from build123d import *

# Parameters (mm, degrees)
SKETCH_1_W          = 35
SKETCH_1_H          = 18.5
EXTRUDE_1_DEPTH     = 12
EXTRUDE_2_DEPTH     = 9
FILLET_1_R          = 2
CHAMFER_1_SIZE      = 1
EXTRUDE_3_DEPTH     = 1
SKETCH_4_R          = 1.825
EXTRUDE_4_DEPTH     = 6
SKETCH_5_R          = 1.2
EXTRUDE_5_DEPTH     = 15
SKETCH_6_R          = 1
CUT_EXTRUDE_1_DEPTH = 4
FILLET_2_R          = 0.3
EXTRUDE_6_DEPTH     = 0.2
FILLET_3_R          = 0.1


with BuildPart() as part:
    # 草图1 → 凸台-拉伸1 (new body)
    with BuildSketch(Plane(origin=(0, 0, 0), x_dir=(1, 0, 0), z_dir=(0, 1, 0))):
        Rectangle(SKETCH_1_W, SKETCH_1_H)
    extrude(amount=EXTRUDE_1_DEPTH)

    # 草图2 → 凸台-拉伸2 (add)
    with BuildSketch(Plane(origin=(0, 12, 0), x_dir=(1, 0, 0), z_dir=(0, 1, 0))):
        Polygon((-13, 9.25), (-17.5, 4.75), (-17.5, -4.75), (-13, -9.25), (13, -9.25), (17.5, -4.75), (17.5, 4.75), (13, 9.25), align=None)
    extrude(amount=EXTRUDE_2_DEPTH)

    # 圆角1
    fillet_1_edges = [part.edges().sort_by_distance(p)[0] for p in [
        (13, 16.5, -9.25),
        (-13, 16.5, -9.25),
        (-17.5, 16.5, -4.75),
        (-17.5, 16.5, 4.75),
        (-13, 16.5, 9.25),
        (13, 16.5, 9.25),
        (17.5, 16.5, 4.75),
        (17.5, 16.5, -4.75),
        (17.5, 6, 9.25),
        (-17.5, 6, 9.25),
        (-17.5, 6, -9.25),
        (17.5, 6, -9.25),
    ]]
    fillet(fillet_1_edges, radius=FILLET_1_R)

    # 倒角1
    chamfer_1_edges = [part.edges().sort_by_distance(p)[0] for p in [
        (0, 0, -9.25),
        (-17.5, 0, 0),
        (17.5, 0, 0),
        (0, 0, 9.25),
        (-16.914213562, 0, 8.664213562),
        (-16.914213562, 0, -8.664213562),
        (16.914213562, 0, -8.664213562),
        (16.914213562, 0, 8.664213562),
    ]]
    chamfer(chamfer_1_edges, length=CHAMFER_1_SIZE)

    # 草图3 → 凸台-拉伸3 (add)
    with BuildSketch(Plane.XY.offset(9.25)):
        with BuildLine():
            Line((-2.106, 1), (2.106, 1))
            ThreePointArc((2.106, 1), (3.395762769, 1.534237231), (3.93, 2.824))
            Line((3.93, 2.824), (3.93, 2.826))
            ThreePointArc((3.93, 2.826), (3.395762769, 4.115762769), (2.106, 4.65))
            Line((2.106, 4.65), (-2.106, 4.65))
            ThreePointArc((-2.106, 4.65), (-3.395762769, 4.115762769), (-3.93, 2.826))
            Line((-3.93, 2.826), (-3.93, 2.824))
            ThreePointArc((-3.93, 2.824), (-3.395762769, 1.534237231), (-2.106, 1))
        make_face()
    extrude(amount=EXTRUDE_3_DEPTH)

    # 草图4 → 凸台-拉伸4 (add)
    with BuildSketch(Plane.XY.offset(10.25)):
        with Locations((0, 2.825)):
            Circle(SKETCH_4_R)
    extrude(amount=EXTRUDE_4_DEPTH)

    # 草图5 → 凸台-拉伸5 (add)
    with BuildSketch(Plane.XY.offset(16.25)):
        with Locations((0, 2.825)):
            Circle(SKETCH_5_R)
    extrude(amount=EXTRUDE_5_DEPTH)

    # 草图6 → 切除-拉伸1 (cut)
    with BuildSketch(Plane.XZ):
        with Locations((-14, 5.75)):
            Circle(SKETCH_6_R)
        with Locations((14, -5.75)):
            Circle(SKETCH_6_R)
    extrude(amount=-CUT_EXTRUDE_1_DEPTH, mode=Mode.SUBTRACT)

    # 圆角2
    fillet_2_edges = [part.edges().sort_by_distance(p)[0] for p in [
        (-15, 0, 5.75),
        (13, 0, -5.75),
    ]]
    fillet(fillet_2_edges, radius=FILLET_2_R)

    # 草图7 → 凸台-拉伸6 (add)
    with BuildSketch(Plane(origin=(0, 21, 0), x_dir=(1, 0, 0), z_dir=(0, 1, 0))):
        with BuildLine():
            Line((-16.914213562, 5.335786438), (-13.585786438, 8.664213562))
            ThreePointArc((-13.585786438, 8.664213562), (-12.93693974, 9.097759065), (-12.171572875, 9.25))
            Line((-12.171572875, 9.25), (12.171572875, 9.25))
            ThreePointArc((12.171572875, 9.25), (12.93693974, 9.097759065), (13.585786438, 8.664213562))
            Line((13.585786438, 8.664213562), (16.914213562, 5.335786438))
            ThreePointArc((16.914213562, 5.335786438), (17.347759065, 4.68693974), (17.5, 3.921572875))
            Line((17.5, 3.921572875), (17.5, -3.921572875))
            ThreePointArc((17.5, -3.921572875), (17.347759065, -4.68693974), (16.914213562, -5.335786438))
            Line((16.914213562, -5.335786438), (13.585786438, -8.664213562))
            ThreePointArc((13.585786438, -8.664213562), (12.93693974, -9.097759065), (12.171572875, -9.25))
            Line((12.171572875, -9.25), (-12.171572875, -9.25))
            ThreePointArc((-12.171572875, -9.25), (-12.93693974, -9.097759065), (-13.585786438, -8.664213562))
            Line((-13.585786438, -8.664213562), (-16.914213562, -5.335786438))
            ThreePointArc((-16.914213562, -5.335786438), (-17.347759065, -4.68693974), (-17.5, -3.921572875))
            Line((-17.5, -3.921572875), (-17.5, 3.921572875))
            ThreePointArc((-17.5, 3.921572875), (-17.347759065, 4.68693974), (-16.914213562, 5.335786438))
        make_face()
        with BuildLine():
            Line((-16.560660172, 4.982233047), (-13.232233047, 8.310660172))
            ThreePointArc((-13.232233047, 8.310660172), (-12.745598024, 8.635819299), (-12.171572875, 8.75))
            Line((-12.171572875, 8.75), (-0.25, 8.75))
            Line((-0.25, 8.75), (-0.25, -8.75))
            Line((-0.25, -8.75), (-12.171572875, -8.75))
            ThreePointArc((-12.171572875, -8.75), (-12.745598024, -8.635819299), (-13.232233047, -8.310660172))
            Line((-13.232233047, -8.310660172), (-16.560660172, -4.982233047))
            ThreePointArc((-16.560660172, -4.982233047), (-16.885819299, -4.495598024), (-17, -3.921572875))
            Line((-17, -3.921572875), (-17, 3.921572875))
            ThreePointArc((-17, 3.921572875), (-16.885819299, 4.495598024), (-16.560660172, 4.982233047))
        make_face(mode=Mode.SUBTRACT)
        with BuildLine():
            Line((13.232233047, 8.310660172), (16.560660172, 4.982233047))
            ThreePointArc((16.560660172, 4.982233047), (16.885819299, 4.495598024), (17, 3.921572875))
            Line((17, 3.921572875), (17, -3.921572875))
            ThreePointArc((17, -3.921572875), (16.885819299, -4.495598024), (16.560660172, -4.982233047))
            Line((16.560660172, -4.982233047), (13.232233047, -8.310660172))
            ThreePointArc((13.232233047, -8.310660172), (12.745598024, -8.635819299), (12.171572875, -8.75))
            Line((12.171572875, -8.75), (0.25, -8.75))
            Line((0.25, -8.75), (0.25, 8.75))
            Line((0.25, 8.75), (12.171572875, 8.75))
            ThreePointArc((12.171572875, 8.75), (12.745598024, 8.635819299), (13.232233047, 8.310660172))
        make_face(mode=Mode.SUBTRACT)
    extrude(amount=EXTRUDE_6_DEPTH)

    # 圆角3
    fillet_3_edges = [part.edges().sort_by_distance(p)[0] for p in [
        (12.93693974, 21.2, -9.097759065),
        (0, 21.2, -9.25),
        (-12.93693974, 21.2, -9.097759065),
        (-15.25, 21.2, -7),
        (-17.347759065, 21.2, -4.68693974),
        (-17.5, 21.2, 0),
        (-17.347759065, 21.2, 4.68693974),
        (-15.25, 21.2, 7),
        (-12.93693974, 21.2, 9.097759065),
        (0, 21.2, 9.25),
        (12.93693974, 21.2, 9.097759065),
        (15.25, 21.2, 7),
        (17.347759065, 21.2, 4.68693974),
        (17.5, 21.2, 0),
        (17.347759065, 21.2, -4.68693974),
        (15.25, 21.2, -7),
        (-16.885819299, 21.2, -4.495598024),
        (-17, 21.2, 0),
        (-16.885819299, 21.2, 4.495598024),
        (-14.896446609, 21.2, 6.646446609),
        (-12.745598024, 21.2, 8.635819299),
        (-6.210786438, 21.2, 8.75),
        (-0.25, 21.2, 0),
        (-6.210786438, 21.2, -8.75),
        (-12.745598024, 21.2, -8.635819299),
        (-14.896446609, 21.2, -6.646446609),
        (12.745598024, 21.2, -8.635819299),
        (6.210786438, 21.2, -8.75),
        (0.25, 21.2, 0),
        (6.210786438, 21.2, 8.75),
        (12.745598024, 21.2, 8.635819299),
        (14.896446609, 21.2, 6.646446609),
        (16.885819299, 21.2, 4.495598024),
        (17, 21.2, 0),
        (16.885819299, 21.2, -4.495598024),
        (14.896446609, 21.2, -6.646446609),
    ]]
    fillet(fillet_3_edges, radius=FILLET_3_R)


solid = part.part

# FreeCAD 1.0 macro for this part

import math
import FreeCAD as App
import Part
import Sketcher
from FreeCAD import Vector


def edges_at(feature, points):
    """Names of the edges that pass closest to the given points."""
    edges = feature.Shape.Edges
    near = lambda p: min(range(len(edges)), key=lambda i: edges[i].distToShape(Part.Vertex(*p))[0])
    return sorted({f"Edge{near(p) + 1}" for p in points})


def add_polygon(sketch, points):
    """Adds a closed chain of lines whose ends are joined by coincident constraints."""
    first, n = sketch.GeometryCount, len(points)
    for a, b in zip(points, points[1:] + points[:1]):
        sketch.addGeometry(Part.LineSegment(App.Vector(*a, 0), App.Vector(*b, 0)), False)
    for i in range(n):
        sketch.addConstraint(Sketcher.Constraint("Coincident", first + i, 2, first + (i + 1) % n, 1))

doc = App.newDocument("Part")
body = doc.addObject("PartDesign::Body", "Body")

# Sketch on XZ plane
sketch1 = body.newObject("Sketcher::SketchObject", "Sketch")
sketch1.AttachmentSupport = (doc.getObject("XZ_Plane"), [""])
sketch1.MapMode = "FlatFace"
add_polygon(sketch1, [(-18, -9), (-18, 9), (18, 9), (18, -9)])  # lines 0-3
sketch1.addConstraint([
    Sketcher.Constraint("Vertical", 0),
    Sketcher.Constraint("Horizontal", 1),
    Sketcher.Constraint("Vertical", 2),
    Sketcher.Constraint("Horizontal", 3),
    Sketcher.Constraint("Symmetric", 0, 2, 2, 2, -1, 1),
    Sketcher.Constraint("DistanceX", 1, 1, 1, 2, 35.0),
    Sketcher.Constraint("DistanceY", 0, 1, 0, 2, 18.5),
])
pad1 = body.newObject("PartDesign::Pad", "Pad")
pad1.Profile = sketch1
pad1.Length = 12
pad1.Reversed = True

# Sketch on XZ plane
sketch2 = body.newObject("Sketcher::SketchObject", "Sketch001")
sketch2.AttachmentSupport = (doc.getObject("XZ_Plane"), [""])
sketch2.MapMode = "FlatFace"
sketch2.AttachmentOffset = App.Placement(Vector(0, 0, -12), App.Rotation())
add_polygon(sketch2, [(-13, -9), (-18, -5), (-18, 5), (-13, 9), (13, 9), (18, 5), (18, -5), (13, -9)])  # lines 0-7
sketch2.addConstraint([
    Sketcher.Constraint("Vertical", 1),
    Sketcher.Constraint("Horizontal", 3),
    Sketcher.Constraint("Vertical", 5),
    Sketcher.Constraint("Horizontal", 7),
    Sketcher.Constraint("Symmetric", 0, 2, 4, 2, -1, 1),
    Sketcher.Constraint("Symmetric", 2, 2, 6, 2, -1, 1),
    Sketcher.Constraint("Perpendicular", 0, 2),
    Sketcher.Constraint("Perpendicular", 2, 4),
    Sketcher.Constraint("Perpendicular", 4, 6),
    Sketcher.Constraint("Horizontal", 1, 2, 4, 2),
    Sketcher.Constraint("Vertical", 3, 2, 6, 2),
    Sketcher.Constraint("DistanceX", 3, 1, 3, 2, 26.0),
    Sketcher.Constraint("DistanceY", 1, 1, 1, 2, 9.5),
    Sketcher.Constraint("DistanceY", 0, 2, 2, 2, 14.0),
])
pad2 = body.newObject("PartDesign::Pad", "Pad001")
pad2.Profile = sketch2
pad2.Length = 9
pad2.Reversed = True
doc.recompute()

fillet = body.newObject("PartDesign::Fillet", "Fillet")
fillet.Base = (pad2, edges_at(pad2, [
    (13, 16.5, -9.25),
    (-13, 16.5, -9.25),
    (-17.5, 16.5, -4.75),
    (-17.5, 16.5, 4.75),
    (-13, 16.5, 9.25),
    (13, 16.5, 9.25),
    (17.5, 16.5, 4.75),
    (17.5, 16.5, -4.75),
    (17.5, 6, 9.25),
    (-17.5, 6, 9.25),
    (-17.5, 6, -9.25),
    (17.5, 6, -9.25),
]))
fillet.Radius = 2
doc.recompute()

chamfer = body.newObject("PartDesign::Chamfer", "Chamfer")
chamfer.Base = (fillet, edges_at(fillet, [
    (0, 0, -9.25),
    (-17.5, 0, 0),
    (17.5, 0, 0),
    (0, 0, 9.25),
    (-16.914, 0, 8.664),
    (-16.914, 0, -8.664),
    (16.914, 0, -8.664),
    (16.914, 0, 8.664),
]))
chamfer.Size = 1

# Sketch on XY plane
sketch3 = body.newObject("Sketcher::SketchObject", "Sketch002")
sketch3.AttachmentSupport = (doc.getObject("XY_Plane"), [""])
sketch3.MapMode = "FlatFace"
sketch3.AttachmentOffset = App.Placement(Vector(0, 0, 9.25), App.Rotation())
sketch3.addGeometry([
    Part.LineSegment(Vector(-2.106, 1, 0), Vector(2.106, 1, 0)),  # 0
    Part.ArcOfCircle(Part.Circle(Vector(2.106, 2.824, 0), Vector(0, 0, 1), 1.824), math.radians(-90), math.radians(0)),  # 1
    Part.LineSegment(Vector(3.93, 2.824, 0), Vector(3.93, 2.826, 0)),  # 2
    Part.ArcOfCircle(Part.Circle(Vector(2.106, 2.826, 0), Vector(0, 0, 1), 1.824), math.radians(0), math.radians(90)),  # 3
    Part.LineSegment(Vector(2.106, 4.65, 0), Vector(-2.106, 4.65, 0)),  # 4
    Part.ArcOfCircle(Part.Circle(Vector(-2.106, 2.826, 0), Vector(0, 0, 1), 1.824), math.radians(90), math.radians(180)),  # 5
    Part.LineSegment(Vector(-3.93, 2.826, 0), Vector(-3.93, 2.824, 0)),  # 6
    Part.ArcOfCircle(Part.Circle(Vector(-2.106, 2.824, 0), Vector(0, 0, 1), 1.824), math.radians(180), math.radians(270)),  # 7
], False)
sketch3.addConstraint([
    Sketcher.Constraint("Tangent", 0, 2, 1, 1),
    Sketcher.Constraint("Tangent", 1, 2, 2, 1),
    Sketcher.Constraint("Coincident", 2, 2, 3, 1),
    Sketcher.Constraint("Tangent", 3, 2, 4, 1),
    Sketcher.Constraint("Tangent", 4, 2, 5, 1),
    Sketcher.Constraint("Tangent", 5, 2, 6, 1),
    Sketcher.Constraint("Coincident", 6, 2, 7, 1),
    Sketcher.Constraint("Tangent", 7, 2, 0, 1),
    Sketcher.Constraint("Horizontal", 0),
    Sketcher.Constraint("Horizontal", 4),
    Sketcher.Constraint("Equal", 1, 3),
    Sketcher.Constraint("Equal", 3, 5),
    Sketcher.Constraint("Equal", 5, 7),
    Sketcher.Constraint("Symmetric", 2, 2, 5, 2, -2),
    Sketcher.Constraint("Horizontal", 7, 3, 1, 2),
    Sketcher.Constraint("Horizontal", 5, 3, 2, 2),
    Sketcher.Constraint("Horizontal", 1, 2, 6, 2),
    Sketcher.Constraint("DistanceY", -1, 1, 0, 2, 1.0),
    Sketcher.Constraint("Radius", 1, 1.824),
    Sketcher.Constraint("DistanceX", 0, 1, 0, 2, 4.212),
    Sketcher.Constraint("DistanceY", 2, 1, 2, 2, 0.002),
])
pad3 = body.newObject("PartDesign::Pad", "Pad002")
pad3.Profile = sketch3
pad3.Length = 1

# Sketch on XY plane
sketch4 = body.newObject("Sketcher::SketchObject", "Sketch003")
sketch4.AttachmentSupport = (doc.getObject("XY_Plane"), [""])
sketch4.MapMode = "FlatFace"
sketch4.AttachmentOffset = App.Placement(Vector(0, 0, 10.25), App.Rotation())
sketch4.addGeometry(Part.Circle(Vector(0, 2.8, 0), Vector(0, 0, 1), 1.8), False)
sketch4.addConstraint([
    Sketcher.Constraint("PointOnObject", 0, 3, -2),
    Sketcher.Constraint("Diameter", 0, 3.65),
    Sketcher.Constraint("DistanceY", -1, 1, 0, 3, 2.825),
])
pad4 = body.newObject("PartDesign::Pad", "Pad003")
pad4.Profile = sketch4
pad4.Length = 6

# Sketch on XY plane
sketch5 = body.newObject("Sketcher::SketchObject", "Sketch004")
sketch5.AttachmentSupport = (doc.getObject("XY_Plane"), [""])
sketch5.MapMode = "FlatFace"
sketch5.AttachmentOffset = App.Placement(Vector(0, 0, 16.25), App.Rotation())
sketch5.addGeometry(Part.Circle(Vector(0, 2.8, 0), Vector(0, 0, 1), 1.2), False)
sketch5.addConstraint([
    Sketcher.Constraint("PointOnObject", 0, 3, -2),
    Sketcher.Constraint("Diameter", 0, 2.4),
    Sketcher.Constraint("DistanceY", -1, 1, 0, 3, 2.825),
])
pad5 = body.newObject("PartDesign::Pad", "Pad004")
pad5.Profile = sketch5
pad5.Length = 15

# Sketch on XZ plane
sketch6 = body.newObject("Sketcher::SketchObject", "Sketch005")
sketch6.AttachmentSupport = (doc.getObject("XZ_Plane"), [""])
sketch6.MapMode = "FlatFace"
sketch6.addGeometry([
    Part.Circle(Vector(-14, 5.8, 0), Vector(0, 0, 1), 1),
    Part.Circle(Vector(14, -5.8, 0), Vector(0, 0, 1), 1),
], False)
sketch6.addConstraint([
    Sketcher.Constraint("Equal", 0, 1),
    Sketcher.Constraint("Symmetric", 0, 3, 1, 3, -1, 1),
    Sketcher.Constraint("Diameter", 0, 2.0),
    Sketcher.Constraint("DistanceX", 0, 3, -1, 1, 14.0),
    Sketcher.Constraint("DistanceY", 1, 3, 0, 3, 11.5),
])
pocket1 = body.newObject("PartDesign::Pocket", "Pocket")
pocket1.Profile = sketch6
pocket1.Length = 4
doc.recompute()

fillet2 = body.newObject("PartDesign::Fillet", "Fillet001")
fillet2.Base = (pocket1, edges_at(pocket1, [(-15, 0, 5.75), (13, 0, -5.75)]))
fillet2.Radius = 0.3

# Sketch on XZ plane
sketch7 = body.newObject("Sketcher::SketchObject", "Sketch006")
sketch7.AttachmentSupport = (doc.getObject("XZ_Plane"), [""])
sketch7.MapMode = "FlatFace"
sketch7.AttachmentOffset = App.Placement(Vector(0, 0, -21), App.Rotation())
sketch7.addGeometry([
    Part.LineSegment(Vector(-13.6, -8.7, 0), Vector(-16.9, -5.3, 0)),  # 0
    Part.ArcOfCircle(Part.Circle(Vector(-15.5, -3.9, 0), Vector(0, 0, 1), 2), math.radians(180), math.radians(225)),  # 1
    Part.LineSegment(Vector(-17.5, -3.9, 0), Vector(-17.5, 3.9, 0)),  # 2
    Part.ArcOfCircle(Part.Circle(Vector(-15.5, 3.9, 0), Vector(0, 0, 1), 2), math.radians(135), math.radians(180)),  # 3
    Part.LineSegment(Vector(-16.9, 5.3, 0), Vector(-13.6, 8.7, 0)),  # 4
    Part.ArcOfCircle(Part.Circle(Vector(-12.2, 7.2, 0), Vector(0, 0, 1), 2), math.radians(90), math.radians(135)),  # 5
    Part.LineSegment(Vector(-12.2, 9.2, 0), Vector(12.2, 9.2, 0)),  # 6
    Part.ArcOfCircle(Part.Circle(Vector(12.2, 7.2, 0), Vector(0, 0, 1), 2), math.radians(45), math.radians(90)),  # 7
    Part.LineSegment(Vector(13.6, 8.7, 0), Vector(16.9, 5.3, 0)),  # 8
    Part.ArcOfCircle(Part.Circle(Vector(15.5, 3.9, 0), Vector(0, 0, 1), 2), math.radians(0), math.radians(45)),  # 9
    Part.LineSegment(Vector(17.5, 3.9, 0), Vector(17.5, -3.9, 0)),  # 10
    Part.ArcOfCircle(Part.Circle(Vector(15.5, -3.9, 0), Vector(0, 0, 1), 2), math.radians(-45), math.radians(0)),  # 11
    Part.LineSegment(Vector(16.9, -5.3, 0), Vector(13.6, -8.7, 0)),  # 12
    Part.ArcOfCircle(Part.Circle(Vector(12.2, -7.2, 0), Vector(0, 0, 1), 2), math.radians(-90), math.radians(-45)),  # 13
    Part.LineSegment(Vector(12.2, -9.2, 0), Vector(-12.2, -9.2, 0)),  # 14
    Part.ArcOfCircle(Part.Circle(Vector(-12.2, -7.2, 0), Vector(0, 0, 1), 2), math.radians(-135), math.radians(-90)),  # 15
    Part.LineSegment(Vector(13.2, -8.3, 0), Vector(16.6, -5, 0)),  # 16
    Part.ArcOfCircle(Part.Circle(Vector(15.5, -3.9, 0), Vector(0, 0, 1), 1.5), math.radians(-45), math.radians(0)),  # 17
    Part.LineSegment(Vector(17, -3.9, 0), Vector(17, 3.9, 0)),  # 18
    Part.ArcOfCircle(Part.Circle(Vector(15.5, 3.9, 0), Vector(0, 0, 1), 1.5), math.radians(0), math.radians(45)),  # 19
    Part.LineSegment(Vector(16.6, 5, 0), Vector(13.2, 8.3, 0)),  # 20
    Part.ArcOfCircle(Part.Circle(Vector(12.2, 7.3, 0), Vector(0, 0, 1), 1.5), math.radians(45), math.radians(90)),  # 21
    Part.LineSegment(Vector(12.2, 8.8, 0), Vector(0.2, 8.8, 0)),  # 22
    Part.LineSegment(Vector(0.2, 8.8, 0), Vector(0.2, -8.8, 0)),  # 23
    Part.LineSegment(Vector(0.2, -8.8, 0), Vector(12.2, -8.8, 0)),  # 24
    Part.ArcOfCircle(Part.Circle(Vector(12.2, -7.3, 0), Vector(0, 0, 1), 1.5), math.radians(-90), math.radians(-45)),  # 25
    Part.LineSegment(Vector(-16.6, -5, 0), Vector(-13.2, -8.3, 0)),  # 26
    Part.ArcOfCircle(Part.Circle(Vector(-12.2, -7.3, 0), Vector(0, 0, 1), 1.5), math.radians(-135), math.radians(-90)),  # 27
    Part.LineSegment(Vector(-12.2, -8.8, 0), Vector(-0.2, -8.8, 0)),  # 28
    Part.LineSegment(Vector(-0.2, -8.8, 0), Vector(-0.2, 8.8, 0)),  # 29
    Part.LineSegment(Vector(-0.2, 8.8, 0), Vector(-12.2, 8.8, 0)),  # 30
    Part.ArcOfCircle(Part.Circle(Vector(-12.2, 7.3, 0), Vector(0, 0, 1), 1.5), math.radians(90), math.radians(135)),  # 31
    Part.LineSegment(Vector(-13.2, 8.3, 0), Vector(-16.6, 5, 0)),  # 32
    Part.ArcOfCircle(Part.Circle(Vector(-15.5, 3.9, 0), Vector(0, 0, 1), 1.5), math.radians(135), math.radians(180)),  # 33
    Part.LineSegment(Vector(-17, 3.9, 0), Vector(-17, -3.9, 0)),  # 34
    Part.ArcOfCircle(Part.Circle(Vector(-15.5, -3.9, 0), Vector(0, 0, 1), 1.5), math.radians(180), math.radians(225)),  # 35
], False)
sketch7.addConstraint([
    Sketcher.Constraint("Tangent", 0, 2, 1, 2),
    Sketcher.Constraint("Tangent", 1, 1, 2, 1),
    Sketcher.Constraint("Tangent", 2, 2, 3, 2),
    Sketcher.Constraint("Tangent", 3, 1, 4, 1),
    Sketcher.Constraint("Tangent", 4, 2, 5, 2),
    Sketcher.Constraint("Tangent", 5, 1, 6, 1),
    Sketcher.Constraint("Tangent", 6, 2, 7, 2),
    Sketcher.Constraint("Tangent", 7, 1, 8, 1),
    Sketcher.Constraint("Tangent", 8, 2, 9, 2),
    Sketcher.Constraint("Tangent", 9, 1, 10, 1),
    Sketcher.Constraint("Tangent", 10, 2, 11, 2),
    Sketcher.Constraint("Tangent", 11, 1, 12, 1),
    Sketcher.Constraint("Tangent", 12, 2, 13, 2),
    Sketcher.Constraint("Tangent", 13, 1, 14, 1),
    Sketcher.Constraint("Tangent", 14, 2, 15, 2),
    Sketcher.Constraint("Tangent", 15, 1, 0, 1),
    Sketcher.Constraint("Tangent", 16, 2, 17, 1),
    Sketcher.Constraint("Tangent", 17, 2, 18, 1),
    Sketcher.Constraint("Tangent", 18, 2, 19, 1),
    Sketcher.Constraint("Tangent", 19, 2, 20, 1),
    Sketcher.Constraint("Tangent", 20, 2, 21, 1),
    Sketcher.Constraint("Tangent", 21, 2, 22, 1),
    Sketcher.Constraint("Coincident", 22, 2, 23, 1),
    Sketcher.Constraint("Coincident", 23, 2, 24, 1),
    Sketcher.Constraint("Tangent", 24, 2, 25, 1),
    Sketcher.Constraint("Tangent", 25, 2, 16, 1),
    Sketcher.Constraint("Tangent", 26, 2, 27, 1),
    Sketcher.Constraint("Tangent", 27, 2, 28, 1),
    Sketcher.Constraint("Coincident", 28, 2, 29, 1),
    Sketcher.Constraint("Coincident", 29, 2, 30, 1),
    Sketcher.Constraint("Tangent", 30, 2, 31, 1),
    Sketcher.Constraint("Tangent", 31, 2, 32, 1),
    Sketcher.Constraint("Tangent", 32, 2, 33, 1),
    Sketcher.Constraint("Tangent", 33, 2, 34, 1),
    Sketcher.Constraint("Tangent", 34, 2, 35, 1),
    Sketcher.Constraint("Tangent", 35, 2, 26, 1),
    Sketcher.Constraint("Vertical", 2),
    Sketcher.Constraint("Horizontal", 6),
    Sketcher.Constraint("Vertical", 10),
    Sketcher.Constraint("Horizontal", 14),
    Sketcher.Constraint("Vertical", 18),
    Sketcher.Constraint("Horizontal", 22),
    Sketcher.Constraint("Vertical", 23),
    Sketcher.Constraint("Horizontal", 24),
    Sketcher.Constraint("Horizontal", 28),
    Sketcher.Constraint("Vertical", 29),
    Sketcher.Constraint("Horizontal", 30),
    Sketcher.Constraint("Vertical", 34),
    Sketcher.Constraint("Coincident", 17, 3, 11, 3),
    Sketcher.Constraint("Coincident", 19, 3, 9, 3),
    Sketcher.Constraint("Coincident", 21, 3, 7, 3),
    Sketcher.Constraint("Coincident", 25, 3, 13, 3),
    Sketcher.Constraint("Coincident", 27, 3, 15, 3),
    Sketcher.Constraint("Coincident", 31, 3, 5, 3),
    Sketcher.Constraint("Coincident", 33, 3, 3, 3),
    Sketcher.Constraint("Coincident", 35, 3, 1, 3),
    Sketcher.Constraint("Equal", 1, 3),
    Sketcher.Constraint("Equal", 3, 5),
    Sketcher.Constraint("Equal", 5, 7),
    Sketcher.Constraint("Equal", 7, 9),
    Sketcher.Constraint("Equal", 9, 11),
    Sketcher.Constraint("Equal", 11, 13),
    Sketcher.Constraint("Equal", 13, 15),
    Sketcher.Constraint("Equal", 19, 21),
    Sketcher.Constraint("Equal", 21, 25),
    Sketcher.Constraint("Equal", 25, 27),
    Sketcher.Constraint("Equal", 27, 31),
    Sketcher.Constraint("Equal", 31, 33),
    Sketcher.Constraint("Symmetric", 1, 3, 9, 3, -1, 1),
    Sketcher.Constraint("Symmetric", 5, 3, 13, 3, -1, 1),
    Sketcher.Constraint("Symmetric", 4, 2, 7, 1, -2),
    Sketcher.Constraint("Symmetric", 0, 2, 11, 1, -2),
    Sketcher.Constraint("Perpendicular", 0, 4),
    Sketcher.Constraint("Equal", 24, 28),
    Sketcher.Constraint("Radius", 1, 2.0),
    Sketcher.Constraint("Radius", 17, 1.5),
    Sketcher.Constraint("DistanceY", 23, 2, 23, 1, 17.5),
    Sketcher.Constraint("DistanceX", -1, 1, 17, 2, 17.0),
    Sketcher.Constraint("DistanceX", 28, 2, 23, 2, 0.5),
    Sketcher.Constraint("DistanceX", 6, 1, 6, 2, 24.343146),
])
pad6 = body.newObject("PartDesign::Pad", "Pad005")
pad6.Profile = sketch7
pad6.Length = 0.2
pad6.Reversed = True
doc.recompute()

fillet3 = body.newObject("PartDesign::Fillet", "Fillet002")
fillet3.Base = (pad6, edges_at(pad6, [
    (12.937, 21.2, -9.098),
    (0, 21.2, -9.25),
    (-12.937, 21.2, -9.098),
    (-15.25, 21.2, -7),
    (-17.348, 21.2, -4.687),
    (-17.5, 21.2, 0),
    (-17.348, 21.2, 4.687),
    (-15.25, 21.2, 7),
    (-12.937, 21.2, 9.098),
    (0, 21.2, 9.25),
    (12.937, 21.2, 9.098),
    (15.25, 21.2, 7),
    (17.348, 21.2, 4.687),
    (17.5, 21.2, 0),
    (17.348, 21.2, -4.687),
    (15.25, 21.2, -7),
    (-16.886, 21.2, -4.496),
    (-17, 21.2, 0),
    (-16.886, 21.2, 4.496),
    (-14.896, 21.2, 6.646),
    (-12.746, 21.2, 8.636),
    (-6.211, 21.2, 8.75),
    (-0.25, 21.2, 0),
    (-6.211, 21.2, -8.75),
    (-12.746, 21.2, -8.636),
    (-14.896, 21.2, -6.646),
    (12.746, 21.2, -8.636),
    (6.211, 21.2, -8.75),
    (0.25, 21.2, 0),
    (6.211, 21.2, 8.75),
    (12.746, 21.2, 8.636),
    (14.896, 21.2, 6.646),
    (16.886, 21.2, 4.496),
    (17, 21.2, 0),
    (16.886, 21.2, -4.496),
    (14.896, 21.2, -6.646),
]))
fillet3.Radius = 0.1

doc.recompute()
